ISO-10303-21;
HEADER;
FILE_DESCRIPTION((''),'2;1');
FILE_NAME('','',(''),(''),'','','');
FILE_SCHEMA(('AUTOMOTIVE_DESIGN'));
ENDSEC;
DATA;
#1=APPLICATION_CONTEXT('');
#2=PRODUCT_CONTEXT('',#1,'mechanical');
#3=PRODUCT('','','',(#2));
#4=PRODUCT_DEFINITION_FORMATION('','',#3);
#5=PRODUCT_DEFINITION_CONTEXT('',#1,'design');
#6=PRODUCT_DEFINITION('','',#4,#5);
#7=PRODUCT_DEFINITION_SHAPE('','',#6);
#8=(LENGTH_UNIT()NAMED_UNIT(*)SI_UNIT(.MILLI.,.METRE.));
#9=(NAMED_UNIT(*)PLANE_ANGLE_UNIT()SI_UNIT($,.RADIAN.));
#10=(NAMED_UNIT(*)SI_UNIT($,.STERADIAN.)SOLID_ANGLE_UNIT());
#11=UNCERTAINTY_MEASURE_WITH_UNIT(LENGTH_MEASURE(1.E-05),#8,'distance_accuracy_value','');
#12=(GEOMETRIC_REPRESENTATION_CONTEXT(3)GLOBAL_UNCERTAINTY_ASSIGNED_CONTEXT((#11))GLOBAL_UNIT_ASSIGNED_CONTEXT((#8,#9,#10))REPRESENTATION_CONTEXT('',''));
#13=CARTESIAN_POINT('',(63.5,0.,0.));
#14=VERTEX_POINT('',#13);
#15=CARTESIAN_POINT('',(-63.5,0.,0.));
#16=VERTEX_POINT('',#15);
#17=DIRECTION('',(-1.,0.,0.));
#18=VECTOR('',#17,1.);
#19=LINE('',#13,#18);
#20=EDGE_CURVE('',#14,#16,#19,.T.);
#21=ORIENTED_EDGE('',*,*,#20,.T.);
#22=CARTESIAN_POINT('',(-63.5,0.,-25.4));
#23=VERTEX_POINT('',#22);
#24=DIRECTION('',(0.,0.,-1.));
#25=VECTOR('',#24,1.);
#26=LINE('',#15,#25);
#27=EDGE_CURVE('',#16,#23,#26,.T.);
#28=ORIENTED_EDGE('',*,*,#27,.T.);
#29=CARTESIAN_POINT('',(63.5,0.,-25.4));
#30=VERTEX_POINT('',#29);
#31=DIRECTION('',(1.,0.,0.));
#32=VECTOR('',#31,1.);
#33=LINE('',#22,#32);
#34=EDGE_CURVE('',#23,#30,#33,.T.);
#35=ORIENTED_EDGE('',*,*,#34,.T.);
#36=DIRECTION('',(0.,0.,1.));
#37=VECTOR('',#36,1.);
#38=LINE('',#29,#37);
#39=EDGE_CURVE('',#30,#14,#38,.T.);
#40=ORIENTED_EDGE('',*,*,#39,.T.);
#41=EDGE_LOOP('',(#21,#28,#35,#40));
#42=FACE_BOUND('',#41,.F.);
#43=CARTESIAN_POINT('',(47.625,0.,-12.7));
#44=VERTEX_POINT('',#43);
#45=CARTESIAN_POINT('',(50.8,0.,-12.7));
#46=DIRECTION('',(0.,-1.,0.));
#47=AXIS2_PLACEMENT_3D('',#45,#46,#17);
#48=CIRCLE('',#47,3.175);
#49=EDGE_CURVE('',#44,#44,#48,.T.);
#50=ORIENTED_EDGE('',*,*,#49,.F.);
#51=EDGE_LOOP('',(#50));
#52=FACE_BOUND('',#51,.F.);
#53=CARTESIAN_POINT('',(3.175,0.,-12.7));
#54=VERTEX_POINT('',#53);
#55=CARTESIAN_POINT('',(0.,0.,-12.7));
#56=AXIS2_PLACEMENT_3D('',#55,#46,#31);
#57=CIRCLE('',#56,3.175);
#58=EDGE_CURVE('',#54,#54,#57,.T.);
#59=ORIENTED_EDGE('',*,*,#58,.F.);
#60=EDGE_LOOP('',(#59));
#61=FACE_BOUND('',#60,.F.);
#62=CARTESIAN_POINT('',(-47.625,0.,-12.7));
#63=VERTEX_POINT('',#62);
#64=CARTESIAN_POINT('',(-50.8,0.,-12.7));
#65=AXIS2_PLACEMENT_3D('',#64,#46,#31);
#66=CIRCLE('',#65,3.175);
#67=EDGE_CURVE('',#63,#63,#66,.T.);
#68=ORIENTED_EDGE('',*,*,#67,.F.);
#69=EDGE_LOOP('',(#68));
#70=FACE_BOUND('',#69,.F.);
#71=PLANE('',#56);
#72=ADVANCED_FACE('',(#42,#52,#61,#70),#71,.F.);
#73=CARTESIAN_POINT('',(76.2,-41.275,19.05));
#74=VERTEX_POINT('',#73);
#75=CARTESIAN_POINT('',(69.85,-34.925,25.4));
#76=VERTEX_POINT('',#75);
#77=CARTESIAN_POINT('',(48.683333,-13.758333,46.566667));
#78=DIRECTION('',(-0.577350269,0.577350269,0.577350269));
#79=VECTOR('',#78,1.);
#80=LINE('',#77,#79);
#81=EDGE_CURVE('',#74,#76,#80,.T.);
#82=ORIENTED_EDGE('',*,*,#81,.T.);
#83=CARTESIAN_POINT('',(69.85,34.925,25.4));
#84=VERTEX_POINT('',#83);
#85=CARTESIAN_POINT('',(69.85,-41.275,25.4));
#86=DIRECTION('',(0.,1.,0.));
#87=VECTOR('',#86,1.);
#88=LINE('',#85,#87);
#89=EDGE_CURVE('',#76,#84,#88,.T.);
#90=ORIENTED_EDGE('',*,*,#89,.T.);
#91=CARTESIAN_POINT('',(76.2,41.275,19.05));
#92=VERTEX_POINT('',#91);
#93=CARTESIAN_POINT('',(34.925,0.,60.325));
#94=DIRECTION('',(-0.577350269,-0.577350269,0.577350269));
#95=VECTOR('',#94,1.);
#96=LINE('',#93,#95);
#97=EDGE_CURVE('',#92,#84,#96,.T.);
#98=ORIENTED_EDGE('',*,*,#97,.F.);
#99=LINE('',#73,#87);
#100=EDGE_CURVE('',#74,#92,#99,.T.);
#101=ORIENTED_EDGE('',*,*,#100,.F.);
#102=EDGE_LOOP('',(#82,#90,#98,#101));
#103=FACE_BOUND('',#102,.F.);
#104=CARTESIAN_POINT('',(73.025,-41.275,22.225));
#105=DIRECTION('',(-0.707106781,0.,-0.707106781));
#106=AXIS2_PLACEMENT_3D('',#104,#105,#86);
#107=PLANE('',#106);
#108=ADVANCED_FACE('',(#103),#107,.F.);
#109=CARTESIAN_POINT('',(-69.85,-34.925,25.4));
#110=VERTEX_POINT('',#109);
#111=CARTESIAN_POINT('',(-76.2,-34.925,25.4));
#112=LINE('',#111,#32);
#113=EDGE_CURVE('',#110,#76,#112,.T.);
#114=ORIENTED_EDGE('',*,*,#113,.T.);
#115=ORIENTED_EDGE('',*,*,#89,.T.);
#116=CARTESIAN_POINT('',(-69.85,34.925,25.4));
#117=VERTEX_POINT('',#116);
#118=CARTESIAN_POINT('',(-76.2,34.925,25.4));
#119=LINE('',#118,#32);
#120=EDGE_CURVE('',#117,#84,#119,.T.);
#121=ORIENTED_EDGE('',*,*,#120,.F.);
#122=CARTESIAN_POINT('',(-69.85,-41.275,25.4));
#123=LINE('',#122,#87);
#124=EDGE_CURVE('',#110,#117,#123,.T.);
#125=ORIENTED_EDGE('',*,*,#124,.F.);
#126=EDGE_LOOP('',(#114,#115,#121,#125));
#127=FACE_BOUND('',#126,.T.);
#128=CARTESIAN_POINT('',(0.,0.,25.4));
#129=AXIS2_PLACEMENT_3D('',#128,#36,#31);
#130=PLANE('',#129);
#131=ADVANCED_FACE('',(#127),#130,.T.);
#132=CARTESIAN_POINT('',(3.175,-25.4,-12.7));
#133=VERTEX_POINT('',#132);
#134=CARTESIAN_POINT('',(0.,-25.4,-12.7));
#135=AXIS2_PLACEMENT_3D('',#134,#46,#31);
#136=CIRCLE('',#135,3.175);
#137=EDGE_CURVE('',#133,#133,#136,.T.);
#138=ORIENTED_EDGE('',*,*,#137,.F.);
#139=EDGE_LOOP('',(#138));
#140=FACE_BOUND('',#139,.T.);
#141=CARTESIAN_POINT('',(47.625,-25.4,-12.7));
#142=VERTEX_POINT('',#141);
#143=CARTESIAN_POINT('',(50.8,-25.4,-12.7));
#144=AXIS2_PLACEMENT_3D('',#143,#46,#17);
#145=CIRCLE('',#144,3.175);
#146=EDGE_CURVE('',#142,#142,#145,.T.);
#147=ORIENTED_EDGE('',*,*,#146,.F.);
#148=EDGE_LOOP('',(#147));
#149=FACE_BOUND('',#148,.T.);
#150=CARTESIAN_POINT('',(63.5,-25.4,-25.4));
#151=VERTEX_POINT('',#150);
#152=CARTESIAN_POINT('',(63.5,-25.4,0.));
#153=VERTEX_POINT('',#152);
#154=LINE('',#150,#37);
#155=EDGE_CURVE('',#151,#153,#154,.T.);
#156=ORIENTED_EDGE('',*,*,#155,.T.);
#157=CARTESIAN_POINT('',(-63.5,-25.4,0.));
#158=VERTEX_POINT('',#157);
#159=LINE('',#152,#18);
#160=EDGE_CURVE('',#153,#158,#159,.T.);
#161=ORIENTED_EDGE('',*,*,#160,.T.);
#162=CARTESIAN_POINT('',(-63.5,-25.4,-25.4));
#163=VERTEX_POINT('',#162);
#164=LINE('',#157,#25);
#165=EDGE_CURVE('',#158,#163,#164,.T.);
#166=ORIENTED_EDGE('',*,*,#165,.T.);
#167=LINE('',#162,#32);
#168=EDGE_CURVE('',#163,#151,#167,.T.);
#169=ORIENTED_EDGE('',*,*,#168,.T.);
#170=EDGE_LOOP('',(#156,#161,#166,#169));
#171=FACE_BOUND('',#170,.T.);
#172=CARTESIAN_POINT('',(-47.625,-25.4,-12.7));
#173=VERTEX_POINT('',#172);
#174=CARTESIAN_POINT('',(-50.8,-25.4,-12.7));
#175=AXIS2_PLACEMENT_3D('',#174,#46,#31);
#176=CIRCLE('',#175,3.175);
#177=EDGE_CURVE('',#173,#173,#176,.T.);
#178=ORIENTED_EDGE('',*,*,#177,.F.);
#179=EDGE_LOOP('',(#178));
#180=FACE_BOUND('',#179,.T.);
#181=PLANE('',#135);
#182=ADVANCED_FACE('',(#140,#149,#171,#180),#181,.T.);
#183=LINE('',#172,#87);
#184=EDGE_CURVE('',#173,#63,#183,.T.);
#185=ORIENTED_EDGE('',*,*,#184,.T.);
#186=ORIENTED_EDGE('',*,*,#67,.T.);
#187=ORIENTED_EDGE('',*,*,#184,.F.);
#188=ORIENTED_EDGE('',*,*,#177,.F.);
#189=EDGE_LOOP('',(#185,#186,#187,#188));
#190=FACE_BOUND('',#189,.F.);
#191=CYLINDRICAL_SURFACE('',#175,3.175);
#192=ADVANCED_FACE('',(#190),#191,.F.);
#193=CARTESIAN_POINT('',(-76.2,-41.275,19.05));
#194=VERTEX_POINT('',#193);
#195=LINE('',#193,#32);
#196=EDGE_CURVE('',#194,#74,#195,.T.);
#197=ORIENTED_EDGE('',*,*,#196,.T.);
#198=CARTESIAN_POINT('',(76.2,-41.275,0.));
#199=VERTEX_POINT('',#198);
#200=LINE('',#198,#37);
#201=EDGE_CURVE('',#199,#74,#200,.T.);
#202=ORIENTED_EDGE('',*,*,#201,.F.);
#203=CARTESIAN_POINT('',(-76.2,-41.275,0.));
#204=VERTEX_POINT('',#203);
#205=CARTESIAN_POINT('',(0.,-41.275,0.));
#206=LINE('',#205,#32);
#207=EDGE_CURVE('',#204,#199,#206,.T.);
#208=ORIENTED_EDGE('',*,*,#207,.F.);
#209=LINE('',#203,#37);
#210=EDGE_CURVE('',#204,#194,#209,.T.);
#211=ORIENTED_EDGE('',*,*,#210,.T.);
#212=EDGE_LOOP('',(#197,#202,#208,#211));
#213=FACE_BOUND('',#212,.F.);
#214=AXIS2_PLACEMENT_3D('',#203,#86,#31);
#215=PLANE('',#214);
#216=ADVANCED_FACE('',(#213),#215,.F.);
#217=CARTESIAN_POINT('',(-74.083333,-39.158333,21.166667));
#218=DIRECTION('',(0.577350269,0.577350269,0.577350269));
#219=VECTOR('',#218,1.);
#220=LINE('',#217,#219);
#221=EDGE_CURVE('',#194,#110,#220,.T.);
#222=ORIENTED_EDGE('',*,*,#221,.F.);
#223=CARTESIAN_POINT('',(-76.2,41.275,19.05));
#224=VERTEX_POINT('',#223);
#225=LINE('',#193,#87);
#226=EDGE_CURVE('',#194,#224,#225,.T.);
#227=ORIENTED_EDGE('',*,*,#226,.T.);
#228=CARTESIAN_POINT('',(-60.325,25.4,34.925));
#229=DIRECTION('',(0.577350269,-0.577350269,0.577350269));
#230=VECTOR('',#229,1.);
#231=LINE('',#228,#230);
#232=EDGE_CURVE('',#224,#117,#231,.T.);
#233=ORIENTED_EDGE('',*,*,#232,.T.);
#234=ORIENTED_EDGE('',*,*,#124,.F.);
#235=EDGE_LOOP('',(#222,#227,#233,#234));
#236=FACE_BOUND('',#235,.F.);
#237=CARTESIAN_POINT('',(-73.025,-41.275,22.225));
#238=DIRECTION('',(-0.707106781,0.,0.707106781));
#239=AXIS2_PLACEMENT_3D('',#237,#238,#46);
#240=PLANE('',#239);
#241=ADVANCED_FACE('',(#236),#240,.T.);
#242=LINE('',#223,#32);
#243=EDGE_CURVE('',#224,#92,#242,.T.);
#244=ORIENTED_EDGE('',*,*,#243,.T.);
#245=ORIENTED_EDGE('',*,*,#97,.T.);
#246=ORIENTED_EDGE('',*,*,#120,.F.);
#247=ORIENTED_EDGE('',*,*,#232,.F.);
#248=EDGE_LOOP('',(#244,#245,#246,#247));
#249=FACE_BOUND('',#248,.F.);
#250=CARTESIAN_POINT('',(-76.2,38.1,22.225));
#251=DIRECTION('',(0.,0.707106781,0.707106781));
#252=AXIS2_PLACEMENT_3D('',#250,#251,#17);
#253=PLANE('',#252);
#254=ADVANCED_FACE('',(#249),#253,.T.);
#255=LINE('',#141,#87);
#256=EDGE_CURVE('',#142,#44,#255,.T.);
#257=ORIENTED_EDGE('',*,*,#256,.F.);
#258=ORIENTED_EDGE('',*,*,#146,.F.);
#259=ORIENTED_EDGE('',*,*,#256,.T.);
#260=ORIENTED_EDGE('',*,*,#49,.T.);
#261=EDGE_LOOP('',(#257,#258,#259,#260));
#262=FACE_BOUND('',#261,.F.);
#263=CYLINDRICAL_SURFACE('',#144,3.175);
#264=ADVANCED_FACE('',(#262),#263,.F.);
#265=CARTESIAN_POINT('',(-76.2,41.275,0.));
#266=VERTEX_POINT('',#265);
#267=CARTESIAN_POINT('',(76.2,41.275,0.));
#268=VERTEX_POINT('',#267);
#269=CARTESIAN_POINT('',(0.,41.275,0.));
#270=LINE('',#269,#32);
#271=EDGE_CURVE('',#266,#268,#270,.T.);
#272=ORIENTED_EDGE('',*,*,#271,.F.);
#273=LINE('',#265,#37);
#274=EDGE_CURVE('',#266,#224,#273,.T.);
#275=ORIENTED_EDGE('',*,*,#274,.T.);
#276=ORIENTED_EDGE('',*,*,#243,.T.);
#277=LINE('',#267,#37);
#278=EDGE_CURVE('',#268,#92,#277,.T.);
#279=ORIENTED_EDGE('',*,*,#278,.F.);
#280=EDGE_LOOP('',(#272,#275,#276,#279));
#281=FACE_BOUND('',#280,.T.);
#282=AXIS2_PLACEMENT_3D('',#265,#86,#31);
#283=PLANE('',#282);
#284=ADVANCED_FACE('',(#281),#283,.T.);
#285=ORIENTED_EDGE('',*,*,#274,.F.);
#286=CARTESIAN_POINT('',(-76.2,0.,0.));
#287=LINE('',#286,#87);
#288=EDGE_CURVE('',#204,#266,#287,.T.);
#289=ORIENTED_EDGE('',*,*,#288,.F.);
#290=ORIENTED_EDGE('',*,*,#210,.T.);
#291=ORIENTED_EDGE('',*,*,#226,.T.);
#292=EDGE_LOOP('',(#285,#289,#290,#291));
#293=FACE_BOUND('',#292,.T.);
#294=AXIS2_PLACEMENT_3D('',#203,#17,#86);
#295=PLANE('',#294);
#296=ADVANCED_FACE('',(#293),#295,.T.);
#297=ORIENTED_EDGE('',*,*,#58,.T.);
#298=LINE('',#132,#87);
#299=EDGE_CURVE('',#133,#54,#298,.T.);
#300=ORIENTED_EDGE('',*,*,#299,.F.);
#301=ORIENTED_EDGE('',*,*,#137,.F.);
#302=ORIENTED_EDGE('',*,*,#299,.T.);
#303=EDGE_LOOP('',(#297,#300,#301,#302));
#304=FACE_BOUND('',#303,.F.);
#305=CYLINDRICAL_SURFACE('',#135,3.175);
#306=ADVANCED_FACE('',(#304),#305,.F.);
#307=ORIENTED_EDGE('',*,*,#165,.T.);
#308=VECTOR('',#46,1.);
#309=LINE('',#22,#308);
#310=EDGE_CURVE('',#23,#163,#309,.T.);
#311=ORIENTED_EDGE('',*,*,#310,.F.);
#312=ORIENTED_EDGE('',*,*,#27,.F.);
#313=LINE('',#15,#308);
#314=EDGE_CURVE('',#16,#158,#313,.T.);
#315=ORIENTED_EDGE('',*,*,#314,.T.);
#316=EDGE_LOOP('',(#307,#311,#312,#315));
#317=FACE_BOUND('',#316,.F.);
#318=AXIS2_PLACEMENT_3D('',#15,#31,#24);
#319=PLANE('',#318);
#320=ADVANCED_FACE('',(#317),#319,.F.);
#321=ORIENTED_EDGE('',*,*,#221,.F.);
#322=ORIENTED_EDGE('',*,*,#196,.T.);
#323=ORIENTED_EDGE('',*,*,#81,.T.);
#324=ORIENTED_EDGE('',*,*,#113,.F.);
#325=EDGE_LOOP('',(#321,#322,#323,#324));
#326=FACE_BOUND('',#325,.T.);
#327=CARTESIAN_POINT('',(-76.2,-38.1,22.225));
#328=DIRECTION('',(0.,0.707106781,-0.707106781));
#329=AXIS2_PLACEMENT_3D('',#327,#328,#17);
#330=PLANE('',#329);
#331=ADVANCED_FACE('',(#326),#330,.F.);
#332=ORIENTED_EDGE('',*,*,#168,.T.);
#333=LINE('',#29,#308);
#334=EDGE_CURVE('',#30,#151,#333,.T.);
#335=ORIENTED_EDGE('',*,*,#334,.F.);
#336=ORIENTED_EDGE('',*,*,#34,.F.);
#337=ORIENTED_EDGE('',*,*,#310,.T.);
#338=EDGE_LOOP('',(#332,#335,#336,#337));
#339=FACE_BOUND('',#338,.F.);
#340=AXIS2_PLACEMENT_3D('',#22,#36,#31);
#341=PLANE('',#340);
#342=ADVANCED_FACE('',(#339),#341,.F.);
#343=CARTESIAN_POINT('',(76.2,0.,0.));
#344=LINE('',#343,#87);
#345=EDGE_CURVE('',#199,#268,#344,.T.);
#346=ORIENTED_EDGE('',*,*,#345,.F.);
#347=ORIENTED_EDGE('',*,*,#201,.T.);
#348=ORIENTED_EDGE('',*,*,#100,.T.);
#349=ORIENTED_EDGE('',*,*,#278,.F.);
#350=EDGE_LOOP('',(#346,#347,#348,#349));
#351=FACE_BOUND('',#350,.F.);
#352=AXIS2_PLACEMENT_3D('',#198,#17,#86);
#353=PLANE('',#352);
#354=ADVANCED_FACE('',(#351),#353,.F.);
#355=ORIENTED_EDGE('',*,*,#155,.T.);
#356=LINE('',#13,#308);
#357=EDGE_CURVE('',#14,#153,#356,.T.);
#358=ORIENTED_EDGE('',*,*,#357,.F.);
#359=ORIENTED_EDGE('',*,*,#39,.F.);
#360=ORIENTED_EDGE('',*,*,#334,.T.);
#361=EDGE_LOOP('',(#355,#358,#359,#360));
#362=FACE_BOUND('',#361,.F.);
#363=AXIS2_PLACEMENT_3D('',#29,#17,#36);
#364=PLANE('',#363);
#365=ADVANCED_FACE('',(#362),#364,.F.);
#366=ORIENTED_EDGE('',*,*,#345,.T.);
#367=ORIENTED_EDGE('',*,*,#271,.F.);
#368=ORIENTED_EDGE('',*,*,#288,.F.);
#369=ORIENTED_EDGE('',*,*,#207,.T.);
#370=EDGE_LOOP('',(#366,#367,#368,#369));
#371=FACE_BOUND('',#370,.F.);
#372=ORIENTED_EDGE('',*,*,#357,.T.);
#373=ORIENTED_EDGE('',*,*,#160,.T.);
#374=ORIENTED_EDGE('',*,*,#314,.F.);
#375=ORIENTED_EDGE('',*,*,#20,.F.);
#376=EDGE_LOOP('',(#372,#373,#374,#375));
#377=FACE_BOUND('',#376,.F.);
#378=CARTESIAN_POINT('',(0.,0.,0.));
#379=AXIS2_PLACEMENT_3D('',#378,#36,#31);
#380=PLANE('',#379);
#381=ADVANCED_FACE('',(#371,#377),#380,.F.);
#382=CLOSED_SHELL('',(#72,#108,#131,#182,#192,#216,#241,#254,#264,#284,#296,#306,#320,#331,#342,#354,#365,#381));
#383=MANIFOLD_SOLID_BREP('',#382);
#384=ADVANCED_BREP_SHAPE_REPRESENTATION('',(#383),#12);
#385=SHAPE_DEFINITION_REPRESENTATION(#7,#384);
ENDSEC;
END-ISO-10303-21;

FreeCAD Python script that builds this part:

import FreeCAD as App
import Part
import Sketcher
from FreeCAD import Vector
Q = App.Units.Quantity


def edges_at(feature, points):
    """Names of the edges that pass closest to the given points."""
    edges = feature.Shape.Edges
    near = lambda p: min(range(len(edges)), key=lambda i: edges[i].distToShape(Part.Vertex(*p))[0])
    return sorted({f"Edge{near(p) + 1}" for p in points})

doc = App.newDocument("Part")
body = doc.addObject("PartDesign::Body", "Body")

sketch1 = doc.addObject("Sketcher::SketchObject", "Sketch")
body.addObject(sketch1)
sketch1.AttachmentSupport = (doc.XY_Plane, [""])
sketch1.MapMode = "FlatFace"
sketch1.addGeometry([
    Part.LineSegment(Vector(-76, 41, 0), Vector(-76, -41, 0)),
    Part.LineSegment(Vector(-76, -41, 0), Vector(76, -41, 0)),
    Part.LineSegment(Vector(76, -41, 0), Vector(76, 41, 0)),
    Part.LineSegment(Vector(76, 41, 0), Vector(-76, 41, 0)),
], False)
sketch1.addConstraint([
    Sketcher.Constraint("Coincident", 0, 2, 1, 1),
    Sketcher.Constraint("Coincident", 1, 2, 2, 1),
    Sketcher.Constraint("Coincident", 2, 2, 3, 1),
    Sketcher.Constraint("Coincident", 3, 2, 0, 1),
    Sketcher.Constraint("Vertical", 0),
    Sketcher.Constraint("Horizontal", 1),
    Sketcher.Constraint("Vertical", 2),
    Sketcher.Constraint("Horizontal", 3),
    Sketcher.Constraint("Symmetric", 0, 2, 2, 2, -1, 1),
    Sketcher.Constraint("DistanceX", 1, 1, 1, 2, Q("6 in")),
    Sketcher.Constraint("DistanceY", 0, 2, 0, 1, Q("3.25 in")),
])
pad1 = doc.addObject("PartDesign::Pad", "Pad")
body.addObject(pad1)
pad1.Profile = sketch1
pad1.Length = Q("1 in")

sketch2 = doc.addObject("Sketcher::SketchObject", "Sketch001")
body.addObject(sketch2)
sketch2.AttachmentSupport = (doc.XZ_Plane, [""])
sketch2.MapMode = "FlatFace"
sketch2.addGeometry([
    Part.LineSegment(Vector(64, 0, 0), Vector(-64, 0, 0)),
    Part.LineSegment(Vector(-64, 0, 0), Vector(-64, -25, 0)),
    Part.LineSegment(Vector(-64, -25, 0), Vector(64, -25, 0)),
    Part.LineSegment(Vector(64, -25, 0), Vector(64, 0, 0)),
], False)
sketch2.addConstraint([
    Sketcher.Constraint("Coincident", 0, 2, 1, 1),
    Sketcher.Constraint("Coincident", 1, 2, 2, 1),
    Sketcher.Constraint("Coincident", 2, 2, 3, 1),
    Sketcher.Constraint("Coincident", 3, 2, 0, 1),
    Sketcher.Constraint("Horizontal", 0),
    Sketcher.Constraint("Vertical", 1),
    Sketcher.Constraint("Horizontal", 2),
    Sketcher.Constraint("Vertical", 3),
    Sketcher.Constraint("Symmetric", 0, 2, 3, 2, -1, 1),
    Sketcher.Constraint("DistanceX", 0, 2, 0, 1, Q("5 in")),
    Sketcher.Constraint("DistanceY", 1, 2, 1, 1, Q("1 in")),
])
pad2 = doc.addObject("PartDesign::Pad", "Pad001")
body.addObject(pad2)
pad2.Profile = sketch2
pad2.Length = Q("1 in")

sketch3 = doc.addObject("Sketcher::SketchObject", "Sketch002")
body.addObject(sketch3)
sketch3.AttachmentSupport = (doc.XZ_Plane, [""])
sketch3.MapMode = "FlatFace"
sketch3.AttachmentOffset = App.Placement(Vector(0, 0, 1 * 25.4), App.Rotation())
sketch3.addGeometry([
    Part.Circle(Vector(0, -12.7, 0), Vector(0, 0, 1), 3.2),
    Part.Circle(Vector(-50.8, -12.7, 0), Vector(0, 0, 1), 3.2),
    Part.Circle(Vector(50.8, -12.7, 0), Vector(0, 0, 1), 3.2),
], False)
sketch3.addConstraint([
    Sketcher.Constraint("Equal", 0, 1),
    Sketcher.Constraint("Equal", 1, 2),
    Sketcher.Constraint("Symmetric", 1, 3, 2, 3, -2),
    Sketcher.Constraint("PointOnObject", 0, 3, -2),
    Sketcher.Constraint("Horizontal", 0, 3, 1, 3),
    Sketcher.Constraint("Diameter", 0, Q("0.25 in")),
    Sketcher.Constraint("DistanceX", 1, 3, -1, 1, Q("2 in")),
    Sketcher.Constraint("DistanceY", 0, 3, -1, 1, Q("0.5 in")),
])
pocket1 = doc.addObject("PartDesign::Pocket", "Pocket")
body.addObject(pocket1)
pocket1.Profile = sketch3
pocket1.Length = Q("1 in")
doc.recompute()

chamfer = doc.addObject("PartDesign::Chamfer", "Chamfer")
body.addObject(chamfer)
chamfer.Base = (pocket1, edges_at(pocket1, [
    (0, 41.275, 25.4),
    (-76.2, 0, 25.4),
    (0, -41.275, 25.4),
    (76.2, 0, 25.4),
]))
chamfer.Size = Q("0.25 in")

doc.recompute()
